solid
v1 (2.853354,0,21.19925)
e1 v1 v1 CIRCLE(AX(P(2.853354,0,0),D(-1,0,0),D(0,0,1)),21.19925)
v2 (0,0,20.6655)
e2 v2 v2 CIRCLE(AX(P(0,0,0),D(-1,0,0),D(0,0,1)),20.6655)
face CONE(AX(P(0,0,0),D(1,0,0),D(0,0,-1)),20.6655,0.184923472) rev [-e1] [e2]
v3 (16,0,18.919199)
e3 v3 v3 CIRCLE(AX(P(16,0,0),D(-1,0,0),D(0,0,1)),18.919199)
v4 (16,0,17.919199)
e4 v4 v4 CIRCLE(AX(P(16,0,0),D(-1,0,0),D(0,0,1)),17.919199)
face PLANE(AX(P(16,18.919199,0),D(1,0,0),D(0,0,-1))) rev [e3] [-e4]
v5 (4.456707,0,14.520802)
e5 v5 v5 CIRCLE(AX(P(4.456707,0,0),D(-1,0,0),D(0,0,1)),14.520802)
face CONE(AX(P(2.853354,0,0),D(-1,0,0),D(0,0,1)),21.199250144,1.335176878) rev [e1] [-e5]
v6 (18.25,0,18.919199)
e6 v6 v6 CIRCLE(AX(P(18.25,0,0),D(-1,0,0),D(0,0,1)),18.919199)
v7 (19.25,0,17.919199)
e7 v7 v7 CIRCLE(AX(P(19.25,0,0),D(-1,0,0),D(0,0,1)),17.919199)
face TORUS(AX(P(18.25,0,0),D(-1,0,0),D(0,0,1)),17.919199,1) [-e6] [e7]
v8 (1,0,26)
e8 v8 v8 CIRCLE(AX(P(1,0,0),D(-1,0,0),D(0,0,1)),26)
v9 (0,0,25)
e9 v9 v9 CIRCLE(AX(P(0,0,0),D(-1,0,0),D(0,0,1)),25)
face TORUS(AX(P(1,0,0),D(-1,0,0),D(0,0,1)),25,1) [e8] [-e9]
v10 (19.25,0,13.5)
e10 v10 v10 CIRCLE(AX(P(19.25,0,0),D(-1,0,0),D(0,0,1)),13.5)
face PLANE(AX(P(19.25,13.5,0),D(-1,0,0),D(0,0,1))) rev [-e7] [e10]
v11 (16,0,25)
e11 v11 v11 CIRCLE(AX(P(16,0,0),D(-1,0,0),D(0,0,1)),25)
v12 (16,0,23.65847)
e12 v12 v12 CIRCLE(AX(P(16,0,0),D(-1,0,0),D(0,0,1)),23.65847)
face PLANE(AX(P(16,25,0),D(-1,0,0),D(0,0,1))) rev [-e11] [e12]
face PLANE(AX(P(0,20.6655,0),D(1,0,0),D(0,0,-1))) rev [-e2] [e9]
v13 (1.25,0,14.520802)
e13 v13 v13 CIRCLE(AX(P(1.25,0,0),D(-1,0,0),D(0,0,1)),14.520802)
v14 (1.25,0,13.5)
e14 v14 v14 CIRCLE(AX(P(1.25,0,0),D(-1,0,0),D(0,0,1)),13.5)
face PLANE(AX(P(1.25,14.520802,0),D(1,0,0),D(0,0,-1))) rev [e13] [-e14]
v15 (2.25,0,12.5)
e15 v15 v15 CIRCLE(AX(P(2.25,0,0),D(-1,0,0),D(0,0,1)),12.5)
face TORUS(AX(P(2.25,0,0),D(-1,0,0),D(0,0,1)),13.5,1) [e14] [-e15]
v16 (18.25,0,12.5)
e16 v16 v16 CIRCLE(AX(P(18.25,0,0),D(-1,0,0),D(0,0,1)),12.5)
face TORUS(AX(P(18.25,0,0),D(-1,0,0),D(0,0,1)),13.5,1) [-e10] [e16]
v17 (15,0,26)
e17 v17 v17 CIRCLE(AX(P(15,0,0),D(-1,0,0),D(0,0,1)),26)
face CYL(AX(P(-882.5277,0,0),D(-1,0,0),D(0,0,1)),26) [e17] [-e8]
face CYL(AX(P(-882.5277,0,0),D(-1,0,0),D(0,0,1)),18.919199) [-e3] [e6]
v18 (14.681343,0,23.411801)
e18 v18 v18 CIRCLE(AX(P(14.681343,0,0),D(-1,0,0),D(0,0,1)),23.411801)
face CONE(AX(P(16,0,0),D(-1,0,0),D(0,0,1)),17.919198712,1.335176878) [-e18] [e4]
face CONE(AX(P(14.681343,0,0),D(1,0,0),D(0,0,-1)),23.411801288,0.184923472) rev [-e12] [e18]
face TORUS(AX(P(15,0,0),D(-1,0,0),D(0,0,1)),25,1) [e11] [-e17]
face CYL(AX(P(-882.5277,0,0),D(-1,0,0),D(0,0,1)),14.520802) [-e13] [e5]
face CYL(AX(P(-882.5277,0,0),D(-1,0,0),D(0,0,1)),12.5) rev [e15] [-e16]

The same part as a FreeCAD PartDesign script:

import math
import FreeCAD as App
import Part
import Sketcher
Q = App.Units.Quantity

doc = App.newDocument("Part")
body = doc.addObject("PartDesign::Body", "Body")

# Sketch on XY plane
sketch1 = body.newObject("Sketcher::SketchObject", "Sketch")
sketch1.AttachmentSupport = (doc.getObject("XY_Plane"), [""])
sketch1.MapMode = "FlatFace"
sketch1.addGeometry(Part.LineSegment(App.Vector(0, 20.7, 0), App.Vector(2.9, 21.2, 0)), False)
sketch1.addGeometry(Part.LineSegment(App.Vector(2.9, 21.2, 0), App.Vector(4.5, 14.5, 0)), False)
sketch1.addGeometry(Part.LineSegment(App.Vector(4.5, 14.5, 0), App.Vector(1.2, 14.5, 0)), False)
sketch1.addGeometry(Part.LineSegment(App.Vector(1.2, 14.5, 0), App.Vector(1.2, 13.5, 0)), False)
sketch1.addGeometry(Part.ArcOfCircle(Part.Circle(App.Vector(2.3, 13.5, 0), App.Vector(0, 0, 1), 1), math.radians(-180), math.radians(-90)), False)
sketch1.addGeometry(Part.LineSegment(App.Vector(2.2, 12.5, 0), App.Vector(18.2, 12.5, 0)), False)
sketch1.addGeometry(Part.ArcOfCircle(Part.Circle(App.Vector(18.2, 13.5, 0), App.Vector(0, 0, 1), 1), math.radians(-90), math.radians(0)), False)
sketch1.addGeometry(Part.LineSegment(App.Vector(19.2, 13.5, 0), App.Vector(19.2, 17.9, 0)), False)
sketch1.addGeometry(Part.ArcOfCircle(Part.Circle(App.Vector(18.3, 17.9, 0), App.Vector(0, 0, 1), 1), math.radians(0), math.radians(90)), False)
sketch1.addGeometry(Part.LineSegment(App.Vector(18.2, 18.9, 0), App.Vector(16, 18.9, 0)), False)
sketch1.addGeometry(Part.LineSegment(App.Vector(16, 18.9, 0), App.Vector(16, 17.9, 0)), False)
sketch1.addGeometry(Part.LineSegment(App.Vector(16, 17.9, 0), App.Vector(14.7, 23.4, 0)), False)
sketch1.addGeometry(Part.LineSegment(App.Vector(14.7, 23.4, 0), App.Vector(16, 23.7, 0)), False)
sketch1.addGeometry(Part.LineSegment(App.Vector(16, 23.7, 0), App.Vector(16, 25, 0)), False)
sketch1.addGeometry(Part.ArcOfCircle(Part.Circle(App.Vector(15, 25, 0), App.Vector(0, 0, 1), 1), math.radians(0), math.radians(90)), False)
sketch1.addGeometry(Part.LineSegment(App.Vector(15, 26, 0), App.Vector(1, 26, 0)), False)
sketch1.addGeometry(Part.ArcOfCircle(Part.Circle(App.Vector(1, 25, 0), App.Vector(0, 0, 1), 1), math.radians(90), math.radians(180)), False)
sketch1.addGeometry(Part.LineSegment(App.Vector(0, 25, 0), App.Vector(0, 20.7, 0)), False)
sketch1.addConstraint(Sketcher.Constraint("Coincident", 0, 2, 1, 1))
sketch1.addConstraint(Sketcher.Constraint("Coincident", 1, 2, 2, 1))
sketch1.addConstraint(Sketcher.Constraint("Coincident", 2, 2, 3, 1))
sketch1.addConstraint(Sketcher.Constraint("Tangent", 3, 2, 4, 1))
sketch1.addConstraint(Sketcher.Constraint("Tangent", 4, 2, 5, 1))
sketch1.addConstraint(Sketcher.Constraint("Tangent", 5, 2, 6, 1))
sketch1.addConstraint(Sketcher.Constraint("Tangent", 6, 2, 7, 1))
sketch1.addConstraint(Sketcher.Constraint("Tangent", 7, 2, 8, 1))
sketch1.addConstraint(Sketcher.Constraint("Tangent", 8, 2, 9, 1))
sketch1.addConstraint(Sketcher.Constraint("Coincident", 9, 2, 10, 1))
sketch1.addConstraint(Sketcher.Constraint("Coincident", 10, 2, 11, 1))
sketch1.addConstraint(Sketcher.Constraint("Coincident", 11, 2, 12, 1))
sketch1.addConstraint(Sketcher.Constraint("Coincident", 12, 2, 13, 1))
sketch1.addConstraint(Sketcher.Constraint("Tangent", 13, 2, 14, 1))
sketch1.addConstraint(Sketcher.Constraint("Tangent", 14, 2, 15, 1))
sketch1.addConstraint(Sketcher.Constraint("Tangent", 15, 2, 16, 1))
sketch1.addConstraint(Sketcher.Constraint("Tangent", 16, 2, 17, 1))
sketch1.addConstraint(Sketcher.Constraint("Coincident", 17, 2, 0, 1))
sketch1.addConstraint(Sketcher.Constraint("Horizontal", 2))
sketch1.addConstraint(Sketcher.Constraint("Vertical", 3))
sketch1.addConstraint(Sketcher.Constraint("Horizontal", 5))
sketch1.addConstraint(Sketcher.Constraint("Vertical", 7))
sketch1.addConstraint(Sketcher.Constraint("Horizontal", 9))
sketch1.addConstraint(Sketcher.Constraint("Vertical", 10))
sketch1.addConstraint(Sketcher.Constraint("Vertical", 13))
sketch1.addConstraint(Sketcher.Constraint("Horizontal", 15))
sketch1.addConstraint(Sketcher.Constraint("Vertical", 17))
sketch1.addConstraint(Sketcher.Constraint("Equal", 4, 6))
sketch1.addConstraint(Sketcher.Constraint("Equal", 6, 8))
sketch1.addConstraint(Sketcher.Constraint("Equal", 8, 14))
sketch1.addConstraint(Sketcher.Constraint("Equal", 14, 16))
sketch1.addConstraint(Sketcher.Constraint("PointOnObject", 16, 2, -2))
sketch1.addConstraint(Sketcher.Constraint("Parallel", 1, 11))
sketch1.addConstraint(Sketcher.Constraint("Parallel", 0, 12))
sketch1.addConstraint(Sketcher.Constraint("Horizontal", 7, 2, 10, 2))
sketch1.addConstraint(Sketcher.Constraint("Vertical", 10, 2, 12, 2))
sketch1.addConstraint(Sketcher.Constraint("Radius", 4, Q("1 mm")))
sketch1.addConstraint(Sketcher.Constraint("DistanceX", 5, 1, 5, 2, Q("16 mm")))
sketch1.addConstraint(Sketcher.Constraint("DistanceX", 15, 2, 15, 1, Q("14 mm")))
sketch1.addConstraint(Sketcher.Constraint("DistanceY", -1, 1, 14, 3, Q("25 mm")))
sketch1.addConstraint(Sketcher.Constraint("Angle", 1, Q("-76.5 deg")))
sketch1.addConstraint(Sketcher.Constraint("DistanceX", 9, 2, 9, 1, Q("2.25 mm")))
sketch1.addConstraint(Sketcher.Constraint("DistanceY", -1, 1, 4, 3, Q("13.5 mm")))
sketch1.addConstraint(Sketcher.Constraint("DistanceY", 3, 2, 3, 1, Q("1.020802 mm")))
sketch1.addConstraint(Sketcher.Constraint("DistanceY", 7, 1, 7, 2, Q("4.419199 mm")))
sketch1.addConstraint(Sketcher.Constraint("DistanceY", 17, 2, 17, 1, Q("4.3345 mm")))
sketch1.addConstraint(Sketcher.Constraint("DistanceY", 13, 1, 13, 2, Q("1.34153 mm")))
sketch1.addConstraint(Sketcher.Constraint("DistanceY", -1, 1, 11, 2, Q("23.411801 mm")))
sketch1.addConstraint(Sketcher.Constraint("Distance", 1, Q("6.868218 mm")))
revolution = body.newObject("PartDesign::Revolution", "Revolution")
revolution.Profile = sketch1
revolution.ReferenceAxis = (sketch1, ["H_Axis"])
revolution.Angle = 360

doc.recompute()
